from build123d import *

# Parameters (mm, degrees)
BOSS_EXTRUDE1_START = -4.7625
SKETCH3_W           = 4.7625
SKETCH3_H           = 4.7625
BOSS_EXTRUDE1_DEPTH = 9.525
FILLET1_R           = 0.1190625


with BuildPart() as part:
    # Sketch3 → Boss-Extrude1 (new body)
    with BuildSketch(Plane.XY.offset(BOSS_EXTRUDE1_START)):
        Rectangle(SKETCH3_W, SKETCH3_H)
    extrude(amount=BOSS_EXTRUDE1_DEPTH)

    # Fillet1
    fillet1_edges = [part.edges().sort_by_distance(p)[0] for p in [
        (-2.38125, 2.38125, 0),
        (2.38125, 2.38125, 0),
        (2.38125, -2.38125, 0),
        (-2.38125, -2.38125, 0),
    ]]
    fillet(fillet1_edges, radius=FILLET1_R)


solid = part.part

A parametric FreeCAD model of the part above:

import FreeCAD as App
import Part
import Sketcher
from FreeCAD import Vector
Q = App.Units.Quantity


def edges_at(feature, points):
    """Names of the edges that pass closest to the given points."""
    edges = feature.Shape.Edges
    near = lambda p: min(range(len(edges)), key=lambda i: edges[i].distToShape(Part.Vertex(*p))[0])
    return sorted({f"Edge{near(p) + 1}" for p in points})

doc = App.newDocument("Part")
body = doc.addObject("PartDesign::Body", "Body")

# Sketch on XY plane
sketch1 = body.newObject("Sketcher::SketchObject", "Sketch")
sketch1.AttachmentSupport = (doc.getObject("XY_Plane"), [""])
sketch1.MapMode = "FlatFace"
sketch1.AttachmentOffset = App.Placement(Vector(0, 0, -0.1875 * 25.4), App.Rotation())
sketch1.addGeometry([
    Part.LineSegment(Vector(-2.4, 2.4, 0), Vector(-2.4, -2.4, 0)),
    Part.LineSegment(Vector(-2.4, -2.4, 0), Vector(2.4, -2.4, 0)),
    Part.LineSegment(Vector(2.4, -2.4, 0), Vector(2.4, 2.4, 0)),
    Part.LineSegment(Vector(2.4, 2.4, 0), Vector(-2.4, 2.4, 0)),
], False)
sketch1.addConstraint([
    Sketcher.Constraint("Coincident", 0, 2, 1, 1),
    Sketcher.Constraint("Coincident", 1, 2, 2, 1),
    Sketcher.Constraint("Coincident", 2, 2, 3, 1),
    Sketcher.Constraint("Coincident", 3, 2, 0, 1),
    Sketcher.Constraint("Vertical", 0),
    Sketcher.Constraint("Horizontal", 1),
    Sketcher.Constraint("Vertical", 2),
    Sketcher.Constraint("Horizontal", 3),
    Sketcher.Constraint("Symmetric", 0, 2, 2, 2, -1, 1),
    Sketcher.Constraint("Equal", 3, 0),
    Sketcher.Constraint("DistanceX", 1, 1, 1, 2, Q("0.1875 in")),
])
pad1 = body.newObject("PartDesign::Pad", "Pad")
pad1.Profile = sketch1
pad1.Length = Q("0.375 in")
doc.recompute()

fillet = body.newObject("PartDesign::Fillet", "Fillet")
fillet.Base = (pad1, edges_at(pad1, [
    (-2.381, 2.381, 0),
    (2.381, 2.381, 0),
    (2.381, -2.381, 0),
    (-2.381, -2.381, 0),
]))
fillet.Radius = 0.119063

doc.recompute()
